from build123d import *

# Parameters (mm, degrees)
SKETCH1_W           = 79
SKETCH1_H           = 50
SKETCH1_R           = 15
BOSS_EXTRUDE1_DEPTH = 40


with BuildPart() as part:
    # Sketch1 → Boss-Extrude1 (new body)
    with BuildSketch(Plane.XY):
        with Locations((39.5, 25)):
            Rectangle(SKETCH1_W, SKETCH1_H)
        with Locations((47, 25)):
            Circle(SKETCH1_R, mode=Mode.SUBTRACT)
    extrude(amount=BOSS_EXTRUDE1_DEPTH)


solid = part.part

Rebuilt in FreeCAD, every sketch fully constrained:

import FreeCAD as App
import Part
import Sketcher
from FreeCAD import Vector


def add_polygon(sketch, points):
    """Adds a closed chain of lines whose ends are joined by coincident constraints."""
    first, n = sketch.GeometryCount, len(points)
    for a, b in zip(points, points[1:] + points[:1]):
        sketch.addGeometry(Part.LineSegment(App.Vector(*a, 0), App.Vector(*b, 0)), False)
    for i in range(n):
        sketch.addConstraint(Sketcher.Constraint("Coincident", first + i, 2, first + (i + 1) % n, 1))

doc = App.newDocument("Part")
body = doc.addObject("PartDesign::Body", "Body")

# Sketch on XY plane
sketch1 = body.newObject("Sketcher::SketchObject", "Sketch")
sketch1.AttachmentSupport = (doc.getObject("XY_Plane"), [""])
sketch1.MapMode = "FlatFace"
add_polygon(sketch1, [(0, 50), (0, 0), (79, 0), (79, 50)])  # lines 0-3
sketch1.addGeometry(Part.Circle(Vector(47, 25, 0), Vector(0, 0, 1), 15), False)  # 4
sketch1.addConstraint([
    Sketcher.Constraint("Vertical", 0),
    Sketcher.Constraint("Horizontal", 1),
    Sketcher.Constraint("Vertical", 2),
    Sketcher.Constraint("Horizontal", 3),
    Sketcher.Constraint("Coincident", 0, 2, -1, 1),
    Sketcher.Constraint("Diameter", 4, 30.0),
    Sketcher.Constraint("DistanceX", 1, 1, 1, 2, 79.0),
    Sketcher.Constraint("DistanceY", 0, 2, 0, 1, 50.0),
    Sketcher.Constraint("DistanceX", -1, 1, 4, 3, 47.0),
    Sketcher.Constraint("DistanceY", -1, 1, 4, 3, 25.0),
])
pad1 = body.newObject("PartDesign::Pad", "Pad")
pad1.Profile = sketch1
pad1.Length = 40

doc.recompute()
